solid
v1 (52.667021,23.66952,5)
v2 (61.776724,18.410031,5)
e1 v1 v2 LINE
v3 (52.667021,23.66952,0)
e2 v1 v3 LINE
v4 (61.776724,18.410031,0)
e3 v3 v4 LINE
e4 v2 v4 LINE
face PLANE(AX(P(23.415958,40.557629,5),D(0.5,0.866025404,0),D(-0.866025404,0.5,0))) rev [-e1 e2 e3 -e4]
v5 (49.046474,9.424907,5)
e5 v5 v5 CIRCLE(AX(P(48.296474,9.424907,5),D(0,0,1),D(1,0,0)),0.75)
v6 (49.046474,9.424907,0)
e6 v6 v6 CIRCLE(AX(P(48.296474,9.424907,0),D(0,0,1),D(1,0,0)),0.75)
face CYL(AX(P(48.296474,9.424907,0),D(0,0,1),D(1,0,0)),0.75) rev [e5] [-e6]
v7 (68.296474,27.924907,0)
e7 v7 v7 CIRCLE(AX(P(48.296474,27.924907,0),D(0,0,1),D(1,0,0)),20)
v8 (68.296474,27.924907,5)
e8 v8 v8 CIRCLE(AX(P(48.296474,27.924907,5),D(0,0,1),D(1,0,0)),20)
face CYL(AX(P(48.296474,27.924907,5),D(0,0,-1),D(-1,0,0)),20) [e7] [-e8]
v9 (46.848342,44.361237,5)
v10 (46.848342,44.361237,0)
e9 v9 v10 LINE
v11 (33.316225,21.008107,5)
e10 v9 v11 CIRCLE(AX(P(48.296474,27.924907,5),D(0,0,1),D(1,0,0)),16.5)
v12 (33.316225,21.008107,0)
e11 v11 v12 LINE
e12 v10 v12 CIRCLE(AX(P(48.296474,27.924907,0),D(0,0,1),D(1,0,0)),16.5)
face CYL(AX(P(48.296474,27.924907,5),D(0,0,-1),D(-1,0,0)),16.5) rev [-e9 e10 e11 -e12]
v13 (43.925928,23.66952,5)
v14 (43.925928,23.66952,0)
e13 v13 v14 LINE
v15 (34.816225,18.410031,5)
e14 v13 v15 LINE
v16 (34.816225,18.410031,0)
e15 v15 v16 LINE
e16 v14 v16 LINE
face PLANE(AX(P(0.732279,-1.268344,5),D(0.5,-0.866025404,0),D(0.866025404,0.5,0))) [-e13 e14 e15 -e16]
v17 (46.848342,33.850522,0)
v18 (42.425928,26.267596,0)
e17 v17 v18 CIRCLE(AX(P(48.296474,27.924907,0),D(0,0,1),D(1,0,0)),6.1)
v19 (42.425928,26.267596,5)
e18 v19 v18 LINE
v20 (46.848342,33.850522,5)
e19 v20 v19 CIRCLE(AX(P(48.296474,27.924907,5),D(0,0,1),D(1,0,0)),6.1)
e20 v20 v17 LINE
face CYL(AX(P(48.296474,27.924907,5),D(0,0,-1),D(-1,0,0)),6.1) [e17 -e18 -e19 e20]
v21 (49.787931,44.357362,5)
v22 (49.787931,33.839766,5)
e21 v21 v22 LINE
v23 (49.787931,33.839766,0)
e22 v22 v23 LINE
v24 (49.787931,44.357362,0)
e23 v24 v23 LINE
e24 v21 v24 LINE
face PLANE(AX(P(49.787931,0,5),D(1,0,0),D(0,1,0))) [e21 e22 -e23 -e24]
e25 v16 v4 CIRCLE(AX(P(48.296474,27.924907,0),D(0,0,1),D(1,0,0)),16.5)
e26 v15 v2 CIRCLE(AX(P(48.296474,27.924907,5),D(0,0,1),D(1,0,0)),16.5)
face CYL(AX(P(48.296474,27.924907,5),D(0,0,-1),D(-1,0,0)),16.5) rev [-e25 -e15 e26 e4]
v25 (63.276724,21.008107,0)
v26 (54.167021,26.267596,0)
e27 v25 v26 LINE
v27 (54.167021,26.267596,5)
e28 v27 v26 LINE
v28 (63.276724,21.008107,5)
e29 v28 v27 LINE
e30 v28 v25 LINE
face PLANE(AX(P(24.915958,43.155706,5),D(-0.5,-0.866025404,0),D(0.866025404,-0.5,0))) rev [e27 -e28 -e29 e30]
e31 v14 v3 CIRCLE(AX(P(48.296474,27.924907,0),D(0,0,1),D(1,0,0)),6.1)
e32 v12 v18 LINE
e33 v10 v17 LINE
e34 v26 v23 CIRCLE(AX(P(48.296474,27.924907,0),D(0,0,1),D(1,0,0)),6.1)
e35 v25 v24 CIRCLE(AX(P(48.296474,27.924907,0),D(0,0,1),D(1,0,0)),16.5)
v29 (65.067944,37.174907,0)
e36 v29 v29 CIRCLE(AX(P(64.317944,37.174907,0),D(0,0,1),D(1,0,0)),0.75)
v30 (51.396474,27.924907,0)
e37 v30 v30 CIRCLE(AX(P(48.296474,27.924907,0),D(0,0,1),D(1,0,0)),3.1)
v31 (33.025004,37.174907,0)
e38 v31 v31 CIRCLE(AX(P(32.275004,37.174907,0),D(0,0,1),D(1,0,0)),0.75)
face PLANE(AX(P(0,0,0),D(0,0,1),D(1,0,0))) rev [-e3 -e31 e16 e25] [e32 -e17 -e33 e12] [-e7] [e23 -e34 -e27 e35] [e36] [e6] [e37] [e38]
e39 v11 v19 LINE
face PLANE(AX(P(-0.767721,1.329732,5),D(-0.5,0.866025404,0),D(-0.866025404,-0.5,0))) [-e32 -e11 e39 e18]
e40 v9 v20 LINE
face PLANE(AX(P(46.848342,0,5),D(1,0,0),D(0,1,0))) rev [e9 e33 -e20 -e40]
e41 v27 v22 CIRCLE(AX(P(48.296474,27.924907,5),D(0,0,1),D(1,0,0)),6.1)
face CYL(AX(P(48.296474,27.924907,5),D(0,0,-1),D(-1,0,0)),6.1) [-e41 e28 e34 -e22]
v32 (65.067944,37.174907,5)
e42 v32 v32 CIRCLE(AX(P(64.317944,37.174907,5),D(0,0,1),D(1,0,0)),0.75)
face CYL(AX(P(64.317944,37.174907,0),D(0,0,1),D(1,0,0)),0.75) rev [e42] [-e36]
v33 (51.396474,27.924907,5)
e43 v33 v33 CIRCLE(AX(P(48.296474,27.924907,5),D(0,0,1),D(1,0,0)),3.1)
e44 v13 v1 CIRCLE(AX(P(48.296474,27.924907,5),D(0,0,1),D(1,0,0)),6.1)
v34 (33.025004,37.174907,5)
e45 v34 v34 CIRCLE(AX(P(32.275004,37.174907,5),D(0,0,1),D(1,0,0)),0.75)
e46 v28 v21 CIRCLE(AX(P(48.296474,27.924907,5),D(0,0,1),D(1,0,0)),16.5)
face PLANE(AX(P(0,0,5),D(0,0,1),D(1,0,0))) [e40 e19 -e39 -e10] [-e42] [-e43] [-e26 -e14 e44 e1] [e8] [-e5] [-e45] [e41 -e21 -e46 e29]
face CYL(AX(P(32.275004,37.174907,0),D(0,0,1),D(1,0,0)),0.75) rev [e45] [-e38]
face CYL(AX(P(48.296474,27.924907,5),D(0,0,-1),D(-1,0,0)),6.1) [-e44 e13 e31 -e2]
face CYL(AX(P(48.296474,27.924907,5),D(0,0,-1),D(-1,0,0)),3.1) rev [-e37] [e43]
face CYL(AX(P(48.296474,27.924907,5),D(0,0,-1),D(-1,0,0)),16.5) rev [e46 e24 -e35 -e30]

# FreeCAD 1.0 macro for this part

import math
import FreeCAD as App
import Part
import Sketcher
from FreeCAD import Vector
Q = App.Units.Quantity

doc = App.newDocument("Part")
body = doc.addObject("PartDesign::Body", "Body")

# Sketch on XY plane
sketch1 = body.newObject("Sketcher::SketchObject", "Sketch")
sketch1.AttachmentSupport = (doc.getObject("XY_Plane"), [""])
sketch1.MapMode = "FlatFace"
sketch1.addGeometry([
    Part.ArcOfCircle(Part.Circle(Vector(48.3, 27.9, 0), Vector(0, 0, 1), 20), math.radians(94), math.radians(206)),  # 0
    Part.ArcOfCircle(Part.Circle(Vector(48.3, 27.9, 0), Vector(0, 0, 1), 20), math.radians(-154.3), math.radians(-145.7)),  # 1
    Part.ArcOfCircle(Part.Circle(Vector(48.3, 27.9, 0), Vector(0, 0, 1), 20), math.radians(-146), math.radians(-34)),  # 2
    Part.ArcOfCircle(Part.Circle(Vector(48.3, 27.9, 0), Vector(0, 0, 1), 20), math.radians(-34.3), math.radians(-25.7)),  # 3
    Part.ArcOfCircle(Part.Circle(Vector(48.3, 27.9, 0), Vector(0, 0, 1), 20), math.radians(-26), math.radians(0)),  # 4
    Part.ArcOfCircle(Part.Circle(Vector(48.3, 27.9, 0), Vector(0, 0, 1), 20), math.radians(0), math.radians(86)),  # 5
    Part.ArcOfCircle(Part.Circle(Vector(48.3, 27.9, 0), Vector(0, 0, 1), 20), math.radians(85.72), math.radians(94.15)),  # 6
    Part.ArcOfCircle(Part.Circle(Vector(48.3, 27.9, 0), Vector(0, 0, 1), 16.5), math.radians(95), math.radians(205)),  # 7
    Part.LineSegment(Vector(46.8, 44.4, 0), Vector(46.8, 33.9, 0)),  # 8
    Part.ArcOfCircle(Part.Circle(Vector(48.3, 27.9, 0), Vector(0, 0, 1), 6.1), math.radians(104), math.radians(196)),  # 9
    Part.LineSegment(Vector(42.4, 26.3, 0), Vector(33.3, 21, 0)),  # 10
    Part.ArcOfCircle(Part.Circle(Vector(48.3, 27.9, 0), Vector(0, 0, 1), 16.5), math.radians(-145), math.radians(-35)),  # 11
    Part.LineSegment(Vector(34.8, 18.4, 0), Vector(43.9, 23.7, 0)),  # 12
    Part.ArcOfCircle(Part.Circle(Vector(48.3, 27.9, 0), Vector(0, 0, 1), 6.1), math.radians(-136), math.radians(-44)),  # 13
    Part.LineSegment(Vector(52.7, 23.7, 0), Vector(61.8, 18.4, 0)),  # 14
    Part.ArcOfCircle(Part.Circle(Vector(48.3, 27.9, 0), Vector(0, 0, 1), 16.5), math.radians(-25), math.radians(0)),  # 15
    Part.LineSegment(Vector(63.3, 21, 0), Vector(54.2, 26.3, 0)),  # 16
    Part.ArcOfCircle(Part.Circle(Vector(48.3, 27.9, 0), Vector(0, 0, 1), 6.1), math.radians(-15.76), math.radians(0)),  # 17
    Part.ArcOfCircle(Part.Circle(Vector(48.3, 27.9, 0), Vector(0, 0, 1), 6.1), math.radians(0), math.radians(76)),  # 18
    Part.LineSegment(Vector(49.8, 33.8, 0), Vector(49.8, 44.4, 0)),  # 19
    Part.ArcOfCircle(Part.Circle(Vector(48.3, 27.9, 0), Vector(0, 0, 1), 16.5), math.radians(0), math.radians(85)),  # 20
    Part.Circle(Vector(48.3, 27.9, 0), Vector(0, 0, 1), 3.1),  # 21
], False)
sketch1.addConstraint([
    Sketcher.Constraint("Tangent", 0, 2, 1, 1),
    Sketcher.Constraint("Tangent", 1, 2, 2, 1),
    Sketcher.Constraint("Tangent", 2, 2, 3, 1),
    Sketcher.Constraint("Tangent", 3, 2, 4, 1),
    Sketcher.Constraint("Tangent", 4, 2, 5, 1),
    Sketcher.Constraint("Tangent", 5, 2, 6, 1),
    Sketcher.Constraint("Tangent", 6, 2, 0, 1),
    Sketcher.Constraint("Coincident", 7, 1, 8, 1),
    Sketcher.Constraint("Coincident", 8, 2, 9, 1),
    Sketcher.Constraint("Coincident", 9, 2, 10, 1),
    Sketcher.Constraint("Coincident", 10, 2, 7, 2),
    Sketcher.Constraint("Coincident", 11, 1, 12, 1),
    Sketcher.Constraint("Coincident", 12, 2, 13, 1),
    Sketcher.Constraint("Coincident", 13, 2, 14, 1),
    Sketcher.Constraint("Coincident", 14, 2, 11, 2),
    Sketcher.Constraint("Coincident", 15, 1, 16, 1),
    Sketcher.Constraint("Coincident", 16, 2, 17, 1),
    Sketcher.Constraint("Tangent", 17, 2, 18, 1),
    Sketcher.Constraint("Coincident", 18, 2, 19, 1),
    Sketcher.Constraint("Coincident", 19, 2, 20, 2),
    Sketcher.Constraint("Tangent", 20, 1, 15, 2),
    Sketcher.Constraint("Vertical", 8),
    Sketcher.Constraint("Vertical", 19),
    Sketcher.Constraint("Coincident", 2, 3, 0, 3),
    Sketcher.Constraint("Coincident", 4, 3, 0, 3),
    Sketcher.Constraint("Coincident", 7, 3, 0, 3),
    Sketcher.Constraint("Coincident", 9, 3, 0, 3),
    Sketcher.Constraint("Coincident", 11, 3, 0, 3),
    Sketcher.Constraint("Coincident", 13, 3, 0, 3),
    Sketcher.Constraint("Coincident", 15, 3, 0, 3),
    Sketcher.Constraint("Coincident", 17, 3, 0, 3),
    Sketcher.Constraint("Coincident", 21, 3, 0, 3),
    Sketcher.Constraint("Equal", 7, 11),
    Sketcher.Constraint("Equal", 9, 13),
    Sketcher.Constraint("Equal", 11, 15),
    Sketcher.Constraint("Equal", 13, 17),
    Sketcher.Constraint("Equal", 17, 18),
    Sketcher.Constraint("Equal", 15, 20),
    Sketcher.Constraint("Parallel", 10, 12),
    Sketcher.Constraint("Parallel", 14, 16),
    Sketcher.Constraint("Horizontal", 1, 2, 2, 2),
    Sketcher.Constraint("Horizontal", 0, 2, 3, 2),
    Sketcher.Constraint("Horizontal", 21, 3, 4, 2),
    Sketcher.Constraint("Horizontal", 12, 2, 13, 2),
    Sketcher.Constraint("Horizontal", 11, 1, 14, 2),
    Sketcher.Constraint("Horizontal", 10, 2, 15, 1),
    Sketcher.Constraint("Horizontal", 4, 2, 17, 2),
    Sketcher.Constraint("Horizontal", 17, 2, 20, 1),
    Sketcher.Constraint("Vertical", 6, 2, 7, 1),
    Sketcher.Constraint("Vertical", 5, 2, 18, 2),
    Sketcher.Constraint("Equal", 10, 12),
    Sketcher.Constraint("Radius", 0, 20.0),
    Sketcher.Constraint("Diameter", 21, 6.2),
    Sketcher.Constraint("Radius", 7, 16.5),
    Sketcher.Constraint("Radius", 9, 6.1),
    Sketcher.Constraint("Angle", 10, Q("-150 deg")),
    Sketcher.Constraint("DistanceX", 0, 2, 1, 2, 1.5),
    Sketcher.Constraint("DistanceX", 10, 2, 11, 1, 1.5),
    Sketcher.Constraint("DistanceX", -1, 1, 2, 2, 64.8182),
    Sketcher.Constraint("DistanceY", 8, 2, 8, 1, 10.510714),
    Sketcher.Constraint("DistanceY", 19, 1, 19, 2, 10.517595),
    Sketcher.Constraint("DistanceX", -1, 1, 0, 2, 30.274749),
    Sketcher.Constraint("DistanceY", -1, 1, 0, 2, 19.25211),
])
pad1 = body.newObject("PartDesign::Pad", "Pad")
pad1.Profile = sketch1
pad1.Length = 5

# Sketch on XY plane
sketch2 = body.newObject("Sketcher::SketchObject", "Sketch001")
sketch2.AttachmentSupport = (doc.getObject("XY_Plane"), [""])
sketch2.MapMode = "FlatFace"
sketch2.AttachmentOffset = App.Placement(Vector(0, 0, 5), App.Rotation())
sketch2.addGeometry([
    Part.Circle(Vector(32.3, 37.2, 0), Vector(0, 0, 1), 0.8),
    Part.Circle(Vector(64.3, 37.2, 0), Vector(0, 0, 1), 0.8),
    Part.Circle(Vector(48.3, 9.4, 0), Vector(0, 0, 1), 0.8),
], False)
sketch2.addConstraint([
    Sketcher.Constraint("Equal", 0, 1),
    Sketcher.Constraint("Equal", 1, 2),
    Sketcher.Constraint("Horizontal", 0, 3, 1, 3),
    Sketcher.Constraint("Diameter", 0, 1.5),
    Sketcher.Constraint("DistanceY", 2, 3, 0, 3, 27.75),
    Sketcher.Constraint("DistanceX", 0, 3, 1, 3, 32.04294),
    Sketcher.Constraint("DistanceX", 0, 3, 2, 3, 16.02147),
    Sketcher.Constraint("DistanceX", -1, 1, 0, 3, 32.275004),
    Sketcher.Constraint("DistanceY", -1, 1, 0, 3, 37.174907),
])
pocket1 = body.newObject("PartDesign::Pocket", "Pocket")
pocket1.Profile = sketch2
pocket1.Length = 5

doc.recompute()
